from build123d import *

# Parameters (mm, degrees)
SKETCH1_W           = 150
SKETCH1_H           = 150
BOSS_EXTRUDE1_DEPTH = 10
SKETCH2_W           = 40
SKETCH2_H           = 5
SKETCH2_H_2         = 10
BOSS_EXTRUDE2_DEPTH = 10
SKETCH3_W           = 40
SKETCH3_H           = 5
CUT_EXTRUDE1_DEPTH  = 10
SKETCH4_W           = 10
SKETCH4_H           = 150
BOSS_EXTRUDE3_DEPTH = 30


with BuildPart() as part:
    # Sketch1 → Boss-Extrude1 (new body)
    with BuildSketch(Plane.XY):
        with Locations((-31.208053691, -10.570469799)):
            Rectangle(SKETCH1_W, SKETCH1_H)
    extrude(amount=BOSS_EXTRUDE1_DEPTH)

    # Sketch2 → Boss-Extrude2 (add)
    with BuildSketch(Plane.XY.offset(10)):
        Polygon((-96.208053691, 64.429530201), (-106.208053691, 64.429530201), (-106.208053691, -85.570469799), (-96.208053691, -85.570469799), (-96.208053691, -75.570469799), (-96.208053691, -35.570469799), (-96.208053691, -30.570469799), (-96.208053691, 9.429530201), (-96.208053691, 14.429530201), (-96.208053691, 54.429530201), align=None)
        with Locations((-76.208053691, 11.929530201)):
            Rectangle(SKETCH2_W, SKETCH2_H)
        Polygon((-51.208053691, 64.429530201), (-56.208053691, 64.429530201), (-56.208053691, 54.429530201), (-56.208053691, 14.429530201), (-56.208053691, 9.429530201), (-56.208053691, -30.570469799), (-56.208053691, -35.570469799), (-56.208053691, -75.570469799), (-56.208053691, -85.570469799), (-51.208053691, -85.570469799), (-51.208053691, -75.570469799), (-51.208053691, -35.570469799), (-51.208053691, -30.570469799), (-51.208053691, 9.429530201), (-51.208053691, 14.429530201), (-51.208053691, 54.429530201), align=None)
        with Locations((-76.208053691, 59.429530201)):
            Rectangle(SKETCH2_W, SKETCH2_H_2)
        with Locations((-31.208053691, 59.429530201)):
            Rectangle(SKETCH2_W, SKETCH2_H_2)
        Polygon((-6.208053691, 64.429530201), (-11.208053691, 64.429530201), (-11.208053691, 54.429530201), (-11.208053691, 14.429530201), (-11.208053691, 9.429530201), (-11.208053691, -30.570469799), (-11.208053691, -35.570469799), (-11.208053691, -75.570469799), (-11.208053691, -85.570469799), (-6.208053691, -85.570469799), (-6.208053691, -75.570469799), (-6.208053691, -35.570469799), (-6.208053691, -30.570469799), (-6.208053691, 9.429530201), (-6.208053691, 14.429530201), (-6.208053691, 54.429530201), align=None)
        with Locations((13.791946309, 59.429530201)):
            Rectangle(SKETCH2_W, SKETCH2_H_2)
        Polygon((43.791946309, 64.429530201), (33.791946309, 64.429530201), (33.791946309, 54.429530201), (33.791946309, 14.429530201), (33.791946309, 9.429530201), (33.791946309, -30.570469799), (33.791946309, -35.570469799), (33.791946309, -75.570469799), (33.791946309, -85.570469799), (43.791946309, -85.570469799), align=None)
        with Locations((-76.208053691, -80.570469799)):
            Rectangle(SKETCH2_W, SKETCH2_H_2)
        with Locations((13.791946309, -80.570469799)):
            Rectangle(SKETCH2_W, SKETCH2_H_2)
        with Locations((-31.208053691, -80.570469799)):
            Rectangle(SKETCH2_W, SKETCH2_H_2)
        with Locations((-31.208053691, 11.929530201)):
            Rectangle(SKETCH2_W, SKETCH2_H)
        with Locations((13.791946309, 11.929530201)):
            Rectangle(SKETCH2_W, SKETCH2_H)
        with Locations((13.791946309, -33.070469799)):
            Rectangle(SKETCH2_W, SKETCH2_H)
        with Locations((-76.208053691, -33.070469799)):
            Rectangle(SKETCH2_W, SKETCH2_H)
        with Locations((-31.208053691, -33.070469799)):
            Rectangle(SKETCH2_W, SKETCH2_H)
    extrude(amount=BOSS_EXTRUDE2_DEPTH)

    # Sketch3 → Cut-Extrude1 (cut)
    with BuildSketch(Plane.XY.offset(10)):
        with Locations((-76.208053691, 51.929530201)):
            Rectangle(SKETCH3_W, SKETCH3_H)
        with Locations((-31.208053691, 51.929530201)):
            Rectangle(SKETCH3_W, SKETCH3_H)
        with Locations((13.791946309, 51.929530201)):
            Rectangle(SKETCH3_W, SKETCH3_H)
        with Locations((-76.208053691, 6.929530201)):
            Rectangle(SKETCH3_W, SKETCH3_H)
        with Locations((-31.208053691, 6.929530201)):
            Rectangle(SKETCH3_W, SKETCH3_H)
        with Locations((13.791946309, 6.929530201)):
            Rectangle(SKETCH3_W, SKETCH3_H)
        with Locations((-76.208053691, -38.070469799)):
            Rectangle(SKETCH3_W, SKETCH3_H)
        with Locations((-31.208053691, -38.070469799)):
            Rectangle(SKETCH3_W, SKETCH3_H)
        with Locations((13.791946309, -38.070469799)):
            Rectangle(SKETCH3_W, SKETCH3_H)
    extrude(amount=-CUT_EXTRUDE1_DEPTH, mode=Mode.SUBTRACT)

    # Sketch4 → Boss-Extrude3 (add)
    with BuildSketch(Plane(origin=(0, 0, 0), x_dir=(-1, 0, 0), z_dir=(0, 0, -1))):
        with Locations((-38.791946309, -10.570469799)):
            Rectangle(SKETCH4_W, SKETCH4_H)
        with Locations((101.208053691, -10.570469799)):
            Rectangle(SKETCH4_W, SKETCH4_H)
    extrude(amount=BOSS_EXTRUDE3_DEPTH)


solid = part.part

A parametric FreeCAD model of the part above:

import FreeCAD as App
import Part
import Sketcher
Q = App.Units.Quantity

doc = App.newDocument("Part")
body = doc.addObject("PartDesign::Body", "Body")

# Sketch on XY plane
sketch1 = body.newObject("Sketcher::SketchObject", "Sketch")
sketch1.AttachmentSupport = (doc.getObject("XY_Plane"), [""])
sketch1.MapMode = "FlatFace"
sketch1.addGeometry([
    Part.LineSegment(App.Vector(-106, 64, 0), App.Vector(-106, -86, 0)),
    Part.LineSegment(App.Vector(-106, -86, 0), App.Vector(44, -86, 0)),
    Part.LineSegment(App.Vector(44, -86, 0), App.Vector(44, 64, 0)),
    Part.LineSegment(App.Vector(44, 64, 0), App.Vector(-106, 64, 0)),
], False)
sketch1.addConstraint([
    Sketcher.Constraint("Coincident", 0, 2, 1, 1),
    Sketcher.Constraint("Coincident", 1, 2, 2, 1),
    Sketcher.Constraint("Coincident", 2, 2, 3, 1),
    Sketcher.Constraint("Coincident", 3, 2, 0, 1),
    Sketcher.Constraint("Vertical", 0),
    Sketcher.Constraint("Horizontal", 1),
    Sketcher.Constraint("Vertical", 2),
    Sketcher.Constraint("Horizontal", 3),
    Sketcher.Constraint("Equal", 3, 0),
    Sketcher.Constraint("DistanceX", 1, 1, 1, 2, Q("150 mm")),
    Sketcher.Constraint("DistanceY", 0, 2, -1, 1, Q("85.57047 mm")),
    Sketcher.Constraint("DistanceX", 0, 2, -1, 1, Q("106.208054 mm")),
])
pad1 = body.newObject("PartDesign::Pad", "Pad")
pad1.Profile = sketch1
pad1.Length = 10

# Sketch on XY plane
sketch2 = body.newObject("Sketcher::SketchObject", "Sketch001")
sketch2.AttachmentSupport = (doc.getObject("XY_Plane"), [""])
sketch2.MapMode = "FlatFace"
sketch2.AttachmentOffset = App.Placement(App.Vector(0, 0, 10), App.Rotation())
sketch2.addGeometry([
    Part.LineSegment(App.Vector(-106, 64, 0), App.Vector(-106, -86, 0)),  # 0
    Part.LineSegment(App.Vector(-106, -86, 0), App.Vector(44, -86, 0)),  # 1
    Part.LineSegment(App.Vector(44, -86, 0), App.Vector(44, 64, 0)),  # 2
    Part.LineSegment(App.Vector(44, 64, 0), App.Vector(-106, 64, 0)),  # 3
    Part.LineSegment(App.Vector(-51, -76, 0), App.Vector(-51, -36, 0)),  # 4
    Part.LineSegment(App.Vector(-51, -36, 0), App.Vector(-11, -36, 0)),  # 5
    Part.LineSegment(App.Vector(-11, -36, 0), App.Vector(-11, -76, 0)),  # 6
    Part.LineSegment(App.Vector(-11, -76, 0), App.Vector(-51, -76, 0)),  # 7
    Part.LineSegment(App.Vector(-51, -31, 0), App.Vector(-51, 9, 0)),  # 8
    Part.LineSegment(App.Vector(-51, 9, 0), App.Vector(-11, 9, 0)),  # 9
    Part.LineSegment(App.Vector(-11, 9, 0), App.Vector(-11, -31, 0)),  # 10
    Part.LineSegment(App.Vector(-11, -31, 0), App.Vector(-51, -31, 0)),  # 11
    Part.LineSegment(App.Vector(-51, 14, 0), App.Vector(-51, 54, 0)),  # 12
    Part.LineSegment(App.Vector(-51, 54, 0), App.Vector(-11, 54, 0)),  # 13
    Part.LineSegment(App.Vector(-11, 54, 0), App.Vector(-11, 14, 0)),  # 14
    Part.LineSegment(App.Vector(-11, 14, 0), App.Vector(-51, 14, 0)),  # 15
    Part.LineSegment(App.Vector(-6, -76, 0), App.Vector(-6, -36, 0)),  # 16
    Part.LineSegment(App.Vector(-6, -36, 0), App.Vector(34, -36, 0)),  # 17
    Part.LineSegment(App.Vector(34, -36, 0), App.Vector(34, -76, 0)),  # 18
    Part.LineSegment(App.Vector(34, -76, 0), App.Vector(-6, -76, 0)),  # 19
    Part.LineSegment(App.Vector(-6, -31, 0), App.Vector(-6, 9, 0)),  # 20
    Part.LineSegment(App.Vector(-6, 9, 0), App.Vector(34, 9, 0)),  # 21
    Part.LineSegment(App.Vector(34, 9, 0), App.Vector(34, -31, 0)),  # 22
    Part.LineSegment(App.Vector(34, -31, 0), App.Vector(-6, -31, 0)),  # 23
    Part.LineSegment(App.Vector(-6, 14, 0), App.Vector(-6, 54, 0)),  # 24
    Part.LineSegment(App.Vector(-6, 54, 0), App.Vector(34, 54, 0)),  # 25
    Part.LineSegment(App.Vector(34, 54, 0), App.Vector(34, 14, 0)),  # 26
    Part.LineSegment(App.Vector(34, 14, 0), App.Vector(-6, 14, 0)),  # 27
    Part.LineSegment(App.Vector(-96, -76, 0), App.Vector(-96, -36, 0)),  # 28
    Part.LineSegment(App.Vector(-96, -36, 0), App.Vector(-56, -36, 0)),  # 29
    Part.LineSegment(App.Vector(-56, -36, 0), App.Vector(-56, -76, 0)),  # 30
    Part.LineSegment(App.Vector(-56, -76, 0), App.Vector(-96, -76, 0)),  # 31
    Part.LineSegment(App.Vector(-96, -31, 0), App.Vector(-96, 9, 0)),  # 32
    Part.LineSegment(App.Vector(-96, 9, 0), App.Vector(-56, 9, 0)),  # 33
    Part.LineSegment(App.Vector(-56, 9, 0), App.Vector(-56, -31, 0)),  # 34
    Part.LineSegment(App.Vector(-56, -31, 0), App.Vector(-96, -31, 0)),  # 35
    Part.LineSegment(App.Vector(-56, 54, 0), App.Vector(-56, 14, 0)),  # 36
    Part.LineSegment(App.Vector(-56, 14, 0), App.Vector(-96, 14, 0)),  # 37
    Part.LineSegment(App.Vector(-96, 14, 0), App.Vector(-96, 54, 0)),  # 38
    Part.LineSegment(App.Vector(-96, 54, 0), App.Vector(-56, 54, 0)),  # 39
], False)
sketch2.addConstraint([
    Sketcher.Constraint("Coincident", 0, 2, 1, 1),
    Sketcher.Constraint("Coincident", 1, 2, 2, 1),
    Sketcher.Constraint("Coincident", 2, 2, 3, 1),
    Sketcher.Constraint("Coincident", 3, 2, 0, 1),
    Sketcher.Constraint("Coincident", 4, 2, 5, 1),
    Sketcher.Constraint("Coincident", 5, 2, 6, 1),
    Sketcher.Constraint("Coincident", 6, 2, 7, 1),
    Sketcher.Constraint("Coincident", 7, 2, 4, 1),
    Sketcher.Constraint("Coincident", 8, 2, 9, 1),
    Sketcher.Constraint("Coincident", 9, 2, 10, 1),
    Sketcher.Constraint("Coincident", 10, 2, 11, 1),
    Sketcher.Constraint("Coincident", 11, 2, 8, 1),
    Sketcher.Constraint("Coincident", 12, 2, 13, 1),
    Sketcher.Constraint("Coincident", 13, 2, 14, 1),
    Sketcher.Constraint("Coincident", 14, 2, 15, 1),
    Sketcher.Constraint("Coincident", 15, 2, 12, 1),
    Sketcher.Constraint("Coincident", 16, 2, 17, 1),
    Sketcher.Constraint("Coincident", 17, 2, 18, 1),
    Sketcher.Constraint("Coincident", 18, 2, 19, 1),
    Sketcher.Constraint("Coincident", 19, 2, 16, 1),
    Sketcher.Constraint("Coincident", 20, 2, 21, 1),
    Sketcher.Constraint("Coincident", 21, 2, 22, 1),
    Sketcher.Constraint("Coincident", 22, 2, 23, 1),
    Sketcher.Constraint("Coincident", 23, 2, 20, 1),
    Sketcher.Constraint("Coincident", 24, 2, 25, 1),
    Sketcher.Constraint("Coincident", 25, 2, 26, 1),
    Sketcher.Constraint("Coincident", 26, 2, 27, 1),
    Sketcher.Constraint("Coincident", 27, 2, 24, 1),
    Sketcher.Constraint("Coincident", 28, 2, 29, 1),
    Sketcher.Constraint("Coincident", 29, 2, 30, 1),
    Sketcher.Constraint("Coincident", 30, 2, 31, 1),
    Sketcher.Constraint("Coincident", 31, 2, 28, 1),
    Sketcher.Constraint("Coincident", 32, 2, 33, 1),
    Sketcher.Constraint("Coincident", 33, 2, 34, 1),
    Sketcher.Constraint("Coincident", 34, 2, 35, 1),
    Sketcher.Constraint("Coincident", 35, 2, 32, 1),
    Sketcher.Constraint("Coincident", 36, 2, 37, 1),
    Sketcher.Constraint("Coincident", 37, 2, 38, 1),
    Sketcher.Constraint("Coincident", 38, 2, 39, 1),
    Sketcher.Constraint("Coincident", 39, 2, 36, 1),
    Sketcher.Constraint("Vertical", 0),
    Sketcher.Constraint("Horizontal", 1),
    Sketcher.Constraint("Vertical", 2),
    Sketcher.Constraint("Horizontal", 3),
    Sketcher.Constraint("Vertical", 4),
    Sketcher.Constraint("Horizontal", 5),
    Sketcher.Constraint("Vertical", 6),
    Sketcher.Constraint("Horizontal", 7),
    Sketcher.Constraint("Vertical", 8),
    Sketcher.Constraint("Horizontal", 9),
    Sketcher.Constraint("Vertical", 10),
    Sketcher.Constraint("Horizontal", 11),
    Sketcher.Constraint("Vertical", 12),
    Sketcher.Constraint("Horizontal", 13),
    Sketcher.Constraint("Vertical", 14),
    Sketcher.Constraint("Horizontal", 15),
    Sketcher.Constraint("Vertical", 16),
    Sketcher.Constraint("Horizontal", 17),
    Sketcher.Constraint("Vertical", 18),
    Sketcher.Constraint("Horizontal", 19),
    Sketcher.Constraint("Vertical", 20),
    Sketcher.Constraint("Horizontal", 21),
    Sketcher.Constraint("Vertical", 22),
    Sketcher.Constraint("Horizontal", 23),
    Sketcher.Constraint("Vertical", 24),
    Sketcher.Constraint("Horizontal", 25),
    Sketcher.Constraint("Vertical", 26),
    Sketcher.Constraint("Horizontal", 27),
    Sketcher.Constraint("Vertical", 28),
    Sketcher.Constraint("Horizontal", 29),
    Sketcher.Constraint("Vertical", 30),
    Sketcher.Constraint("Horizontal", 31),
    Sketcher.Constraint("Vertical", 32),
    Sketcher.Constraint("Horizontal", 33),
    Sketcher.Constraint("Vertical", 34),
    Sketcher.Constraint("Horizontal", 35),
    Sketcher.Constraint("Vertical", 36),
    Sketcher.Constraint("Horizontal", 37),
    Sketcher.Constraint("Vertical", 38),
    Sketcher.Constraint("Horizontal", 39),
    Sketcher.Constraint("Horizontal", 5, 2, 16, 2),
    Sketcher.Constraint("Horizontal", 7, 2, 18, 2),
    Sketcher.Constraint("Horizontal", 9, 2, 20, 2),
    Sketcher.Constraint("Horizontal", 11, 2, 22, 2),
    Sketcher.Constraint("Horizontal", 13, 2, 24, 2),
    Sketcher.Constraint("Horizontal", 15, 2, 26, 2),
    Sketcher.Constraint("Horizontal", 17, 2, 28, 2),
    Sketcher.Constraint("Horizontal", 19, 2, 30, 2),
    Sketcher.Constraint("Horizontal", 21, 2, 32, 2),
    Sketcher.Constraint("Horizontal", 23, 2, 34, 2),
    Sketcher.Constraint("Horizontal", 27, 2, 36, 2),
    Sketcher.Constraint("Horizontal", 25, 2, 38, 2),
    Sketcher.Constraint("Vertical", 7, 2, 8, 2),
    Sketcher.Constraint("Vertical", 6, 2, 9, 2),
    Sketcher.Constraint("Vertical", 11, 2, 12, 2),
    Sketcher.Constraint("Vertical", 10, 2, 13, 2),
    Sketcher.Constraint("Vertical", 19, 2, 20, 2),
    Sketcher.Constraint("Vertical", 18, 2, 21, 2),
    Sketcher.Constraint("Vertical", 23, 2, 24, 2),
    Sketcher.Constraint("Vertical", 22, 2, 25, 2),
    Sketcher.Constraint("Vertical", 31, 2, 32, 2),
    Sketcher.Constraint("Vertical", 30, 2, 33, 2),
    Sketcher.Constraint("Vertical", 34, 2, 36, 2),
    Sketcher.Constraint("Vertical", 35, 2, 37, 2),
    Sketcher.Constraint("Equal", 15, 17),
    Sketcher.Constraint("Equal", 27, 29),
    Sketcher.Constraint("Equal", 3, 0),
    Sketcher.Constraint("Equal", 39, 4),
    Sketcher.Constraint("Equal", 6, 8),
    Sketcher.Constraint("Equal", 10, 12),
    Sketcher.Constraint("DistanceX", 1, 1, 1, 2, Q("150 mm")),
    Sketcher.Constraint("DistanceX", 5, 1, 5, 2, Q("40 mm")),
    Sketcher.Constraint("DistanceX", 0, 2, 4, 2, Q("55 mm")),
    Sketcher.Constraint("DistanceY", 0, 2, 4, 2, Q("50 mm")),
    Sketcher.Constraint("DistanceY", 4, 2, 8, 2, Q("45 mm")),
    Sketcher.Constraint("DistanceY", 8, 2, 12, 2, Q("45 mm")),
    Sketcher.Constraint("DistanceX", 5, 2, 16, 2, Q("5 mm")),
    Sketcher.Constraint("DistanceX", 28, 2, 4, 2, Q("45 mm")),
    Sketcher.Constraint("DistanceY", 0, 2, -1, 1, Q("85.57047 mm")),
    Sketcher.Constraint("DistanceX", 0, 2, -1, 1, Q("106.208054 mm")),
])
pad2 = body.newObject("PartDesign::Pad", "Pad001")
pad2.Profile = sketch2
pad2.Length = 10

# Sketch on XY plane
sketch3 = body.newObject("Sketcher::SketchObject", "Sketch002")
sketch3.AttachmentSupport = (doc.getObject("XY_Plane"), [""])
sketch3.MapMode = "FlatFace"
sketch3.AttachmentOffset = App.Placement(App.Vector(0, 0, 10), App.Rotation())
sketch3.addGeometry([
    Part.LineSegment(App.Vector(-96, 54, 0), App.Vector(-96, 49, 0)),  # 0
    Part.LineSegment(App.Vector(-96, 49, 0), App.Vector(-56, 49, 0)),  # 1
    Part.LineSegment(App.Vector(-56, 49, 0), App.Vector(-56, 54, 0)),  # 2
    Part.LineSegment(App.Vector(-56, 54, 0), App.Vector(-96, 54, 0)),  # 3
    Part.LineSegment(App.Vector(-51, 54, 0), App.Vector(-51, 49, 0)),  # 4
    Part.LineSegment(App.Vector(-51, 49, 0), App.Vector(-11, 49, 0)),  # 5
    Part.LineSegment(App.Vector(-11, 49, 0), App.Vector(-11, 54, 0)),  # 6
    Part.LineSegment(App.Vector(-11, 54, 0), App.Vector(-51, 54, 0)),  # 7
    Part.LineSegment(App.Vector(-6, 54, 0), App.Vector(-6, 49, 0)),  # 8
    Part.LineSegment(App.Vector(-6, 49, 0), App.Vector(34, 49, 0)),  # 9
    Part.LineSegment(App.Vector(34, 49, 0), App.Vector(34, 54, 0)),  # 10
    Part.LineSegment(App.Vector(34, 54, 0), App.Vector(-6, 54, 0)),  # 11
    Part.LineSegment(App.Vector(-96, 9, 0), App.Vector(-96, 4, 0)),  # 12
    Part.LineSegment(App.Vector(-96, 4, 0), App.Vector(-56, 4, 0)),  # 13
    Part.LineSegment(App.Vector(-56, 4, 0), App.Vector(-56, 9, 0)),  # 14
    Part.LineSegment(App.Vector(-56, 9, 0), App.Vector(-96, 9, 0)),  # 15
    Part.LineSegment(App.Vector(-51, 9, 0), App.Vector(-51, 4, 0)),  # 16
    Part.LineSegment(App.Vector(-51, 4, 0), App.Vector(-11, 4, 0)),  # 17
    Part.LineSegment(App.Vector(-11, 4, 0), App.Vector(-11, 9, 0)),  # 18
    Part.LineSegment(App.Vector(-11, 9, 0), App.Vector(-51, 9, 0)),  # 19
    Part.LineSegment(App.Vector(-6, 9, 0), App.Vector(-6, 4, 0)),  # 20
    Part.LineSegment(App.Vector(-6, 4, 0), App.Vector(34, 4, 0)),  # 21
    Part.LineSegment(App.Vector(34, 4, 0), App.Vector(34, 9, 0)),  # 22
    Part.LineSegment(App.Vector(34, 9, 0), App.Vector(-6, 9, 0)),  # 23
    Part.LineSegment(App.Vector(-96, -36, 0), App.Vector(-96, -41, 0)),  # 24
    Part.LineSegment(App.Vector(-96, -41, 0), App.Vector(-56, -41, 0)),  # 25
    Part.LineSegment(App.Vector(-56, -41, 0), App.Vector(-56, -36, 0)),  # 26
    Part.LineSegment(App.Vector(-56, -36, 0), App.Vector(-96, -36, 0)),  # 27
    Part.LineSegment(App.Vector(-51, -36, 0), App.Vector(-51, -41, 0)),  # 28
    Part.LineSegment(App.Vector(-51, -41, 0), App.Vector(-11, -41, 0)),  # 29
    Part.LineSegment(App.Vector(-11, -41, 0), App.Vector(-11, -36, 0)),  # 30
    Part.LineSegment(App.Vector(-11, -36, 0), App.Vector(-51, -36, 0)),  # 31
    Part.LineSegment(App.Vector(-6, -36, 0), App.Vector(-6, -41, 0)),  # 32
    Part.LineSegment(App.Vector(-6, -41, 0), App.Vector(34, -41, 0)),  # 33
    Part.LineSegment(App.Vector(34, -41, 0), App.Vector(34, -36, 0)),  # 34
    Part.LineSegment(App.Vector(34, -36, 0), App.Vector(-6, -36, 0)),  # 35
], False)
sketch3.addConstraint([
    Sketcher.Constraint("Coincident", 0, 2, 1, 1),
    Sketcher.Constraint("Coincident", 1, 2, 2, 1),
    Sketcher.Constraint("Coincident", 2, 2, 3, 1),
    Sketcher.Constraint("Coincident", 3, 2, 0, 1),
    Sketcher.Constraint("Coincident", 4, 2, 5, 1),
    Sketcher.Constraint("Coincident", 5, 2, 6, 1),
    Sketcher.Constraint("Coincident", 6, 2, 7, 1),
    Sketcher.Constraint("Coincident", 7, 2, 4, 1),
    Sketcher.Constraint("Coincident", 8, 2, 9, 1),
    Sketcher.Constraint("Coincident", 9, 2, 10, 1),
    Sketcher.Constraint("Coincident", 10, 2, 11, 1),
    Sketcher.Constraint("Coincident", 11, 2, 8, 1),
    Sketcher.Constraint("Coincident", 12, 2, 13, 1),
    Sketcher.Constraint("Coincident", 13, 2, 14, 1),
    Sketcher.Constraint("Coincident", 14, 2, 15, 1),
    Sketcher.Constraint("Coincident", 15, 2, 12, 1),
    Sketcher.Constraint("Coincident", 16, 2, 17, 1),
    Sketcher.Constraint("Coincident", 17, 2, 18, 1),
    Sketcher.Constraint("Coincident", 18, 2, 19, 1),
    Sketcher.Constraint("Coincident", 19, 2, 16, 1),
    Sketcher.Constraint("Coincident", 20, 2, 21, 1),
    Sketcher.Constraint("Coincident", 21, 2, 22, 1),
    Sketcher.Constraint("Coincident", 22, 2, 23, 1),
    Sketcher.Constraint("Coincident", 23, 2, 20, 1),
    Sketcher.Constraint("Coincident", 24, 2, 25, 1),
    Sketcher.Constraint("Coincident", 25, 2, 26, 1),
    Sketcher.Constraint("Coincident", 26, 2, 27, 1),
    Sketcher.Constraint("Coincident", 27, 2, 24, 1),
    Sketcher.Constraint("Coincident", 28, 2, 29, 1),
    Sketcher.Constraint("Coincident", 29, 2, 30, 1),
    Sketcher.Constraint("Coincident", 30, 2, 31, 1),
    Sketcher.Constraint("Coincident", 31, 2, 28, 1),
    Sketcher.Constraint("Coincident", 32, 2, 33, 1),
    Sketcher.Constraint("Coincident", 33, 2, 34, 1),
    Sketcher.Constraint("Coincident", 34, 2, 35, 1),
    Sketcher.Constraint("Coincident", 35, 2, 32, 1),
    Sketcher.Constraint("Vertical", 0),
    Sketcher.Constraint("Horizontal", 1),
    Sketcher.Constraint("Vertical", 2),
    Sketcher.Constraint("Horizontal", 3),
    Sketcher.Constraint("Vertical", 4),
    Sketcher.Constraint("Horizontal", 5),
    Sketcher.Constraint("Vertical", 6),
    Sketcher.Constraint("Horizontal", 7),
    Sketcher.Constraint("Vertical", 8),
    Sketcher.Constraint("Horizontal", 9),
    Sketcher.Constraint("Vertical", 10),
    Sketcher.Constraint("Horizontal", 11),
    Sketcher.Constraint("Vertical", 12),
    Sketcher.Constraint("Horizontal", 13),
    Sketcher.Constraint("Vertical", 14),
    Sketcher.Constraint("Horizontal", 15),
    Sketcher.Constraint("Vertical", 16),
    Sketcher.Constraint("Horizontal", 17),
    Sketcher.Constraint("Vertical", 18),
    Sketcher.Constraint("Horizontal", 19),
    Sketcher.Constraint("Vertical", 20),
    Sketcher.Constraint("Horizontal", 21),
    Sketcher.Constraint("Vertical", 22),
    Sketcher.Constraint("Horizontal", 23),
    Sketcher.Constraint("Vertical", 24),
    Sketcher.Constraint("Horizontal", 25),
    Sketcher.Constraint("Vertical", 26),
    Sketcher.Constraint("Horizontal", 27),
    Sketcher.Constraint("Vertical", 28),
    Sketcher.Constraint("Horizontal", 29),
    Sketcher.Constraint("Vertical", 30),
    Sketcher.Constraint("Horizontal", 31),
    Sketcher.Constraint("Vertical", 32),
    Sketcher.Constraint("Horizontal", 33),
    Sketcher.Constraint("Vertical", 34),
    Sketcher.Constraint("Horizontal", 35),
    Sketcher.Constraint("Horizontal", 1, 2, 4, 2),
    Sketcher.Constraint("Horizontal", 3, 2, 6, 2),
    Sketcher.Constraint("Horizontal", 5, 2, 8, 2),
    Sketcher.Constraint("Horizontal", 7, 2, 10, 2),
    Sketcher.Constraint("Horizontal", 13, 2, 16, 2),
    Sketcher.Constraint("Horizontal", 15, 2, 18, 2),
    Sketcher.Constraint("Horizontal", 17, 2, 20, 2),
    Sketcher.Constraint("Horizontal", 19, 2, 22, 2),
    Sketcher.Constraint("Horizontal", 25, 2, 28, 2),
    Sketcher.Constraint("Horizontal", 27, 2, 30, 2),
    Sketcher.Constraint("Horizontal", 29, 2, 32, 2),
    Sketcher.Constraint("Horizontal", 31, 2, 34, 2),
    Sketcher.Constraint("Vertical", 3, 2, 12, 2),
    Sketcher.Constraint("Vertical", 2, 2, 13, 2),
    Sketcher.Constraint("Vertical", 7, 2, 16, 2),
    Sketcher.Constraint("Vertical", 6, 2, 17, 2),
    Sketcher.Constraint("Vertical", 11, 2, 20, 2),
    Sketcher.Constraint("Vertical", 10, 2, 21, 2),
    Sketcher.Constraint("Vertical", 15, 2, 24, 2),
    Sketcher.Constraint("Vertical", 14, 2, 25, 2),
    Sketcher.Constraint("Vertical", 19, 2, 28, 2),
    Sketcher.Constraint("Vertical", 18, 2, 29, 2),
    Sketcher.Constraint("Vertical", 23, 2, 32, 2),
    Sketcher.Constraint("Vertical", 22, 2, 33, 2),
    Sketcher.Constraint("Equal", 3, 5),
    Sketcher.Constraint("Equal", 7, 9),
    Sketcher.Constraint("Equal", 10, 12),
    Sketcher.Constraint("Equal", 22, 24),
    Sketcher.Constraint("DistanceX", 1, 1, 1, 2, Q("40 mm")),
    Sketcher.Constraint("DistanceY", 0, 2, 0, 1, Q("5 mm")),
    Sketcher.Constraint("DistanceX", 1, 2, 4, 2, Q("5 mm")),
    Sketcher.Constraint("DistanceX", 5, 2, 8, 2, Q("5 mm")),
    Sketcher.Constraint("DistanceY", 12, 2, 0, 2, Q("45 mm")),
    Sketcher.Constraint("DistanceY", 24, 2, 12, 2, Q("45 mm")),
    Sketcher.Constraint("DistanceY", -1, 1, 0, 2, Q("49.42953 mm")),
    Sketcher.Constraint("DistanceX", 0, 2, -1, 1, Q("96.208054 mm")),
])
pocket1 = body.newObject("PartDesign::Pocket", "Pocket")
pocket1.Profile = sketch3
pocket1.Length = 10

# Sketch on XY plane
sketch4 = body.newObject("Sketcher::SketchObject", "Sketch003")
sketch4.AttachmentSupport = (doc.getObject("XY_Plane"), [""])
sketch4.MapMode = "FlatFace"
sketch4.addGeometry([
    Part.LineSegment(App.Vector(44, 64, 0), App.Vector(44, -86, 0)),  # 0
    Part.LineSegment(App.Vector(44, -86, 0), App.Vector(34, -86, 0)),  # 1
    Part.LineSegment(App.Vector(34, -86, 0), App.Vector(34, 64, 0)),  # 2
    Part.LineSegment(App.Vector(34, 64, 0), App.Vector(44, 64, 0)),  # 3
    Part.LineSegment(App.Vector(-96, 64, 0), App.Vector(-96, -86, 0)),  # 4
    Part.LineSegment(App.Vector(-96, -86, 0), App.Vector(-106, -86, 0)),  # 5
    Part.LineSegment(App.Vector(-106, -86, 0), App.Vector(-106, 64, 0)),  # 6
    Part.LineSegment(App.Vector(-106, 64, 0), App.Vector(-96, 64, 0)),  # 7
], False)
sketch4.addConstraint([
    Sketcher.Constraint("Coincident", 0, 2, 1, 1),
    Sketcher.Constraint("Coincident", 1, 2, 2, 1),
    Sketcher.Constraint("Coincident", 2, 2, 3, 1),
    Sketcher.Constraint("Coincident", 3, 2, 0, 1),
    Sketcher.Constraint("Coincident", 4, 2, 5, 1),
    Sketcher.Constraint("Coincident", 5, 2, 6, 1),
    Sketcher.Constraint("Coincident", 6, 2, 7, 1),
    Sketcher.Constraint("Coincident", 7, 2, 4, 1),
    Sketcher.Constraint("Vertical", 0),
    Sketcher.Constraint("Horizontal", 1),
    Sketcher.Constraint("Vertical", 2),
    Sketcher.Constraint("Horizontal", 3),
    Sketcher.Constraint("Vertical", 4),
    Sketcher.Constraint("Horizontal", 5),
    Sketcher.Constraint("Vertical", 6),
    Sketcher.Constraint("Horizontal", 7),
    Sketcher.Constraint("Horizontal", 1, 2, 4, 2),
    Sketcher.Constraint("Horizontal", 3, 2, 6, 2),
    Sketcher.Constraint("Equal", 3, 5),
    Sketcher.Constraint("DistanceX", 1, 2, 1, 1, Q("10 mm")),
    Sketcher.Constraint("DistanceY", 0, 2, 0, 1, Q("150 mm")),
    Sketcher.Constraint("DistanceX", 4, 2, 1, 2, Q("130 mm")),
    Sketcher.Constraint("DistanceY", 0, 2, -1, 1, Q("85.57047 mm")),
    Sketcher.Constraint("DistanceX", -1, 1, 0, 2, Q("43.791946 mm")),
])
pad3 = body.newObject("PartDesign::Pad", "Pad002")
pad3.Profile = sketch4
pad3.Length = 30
pad3.Reversed = True

doc.recompute()
